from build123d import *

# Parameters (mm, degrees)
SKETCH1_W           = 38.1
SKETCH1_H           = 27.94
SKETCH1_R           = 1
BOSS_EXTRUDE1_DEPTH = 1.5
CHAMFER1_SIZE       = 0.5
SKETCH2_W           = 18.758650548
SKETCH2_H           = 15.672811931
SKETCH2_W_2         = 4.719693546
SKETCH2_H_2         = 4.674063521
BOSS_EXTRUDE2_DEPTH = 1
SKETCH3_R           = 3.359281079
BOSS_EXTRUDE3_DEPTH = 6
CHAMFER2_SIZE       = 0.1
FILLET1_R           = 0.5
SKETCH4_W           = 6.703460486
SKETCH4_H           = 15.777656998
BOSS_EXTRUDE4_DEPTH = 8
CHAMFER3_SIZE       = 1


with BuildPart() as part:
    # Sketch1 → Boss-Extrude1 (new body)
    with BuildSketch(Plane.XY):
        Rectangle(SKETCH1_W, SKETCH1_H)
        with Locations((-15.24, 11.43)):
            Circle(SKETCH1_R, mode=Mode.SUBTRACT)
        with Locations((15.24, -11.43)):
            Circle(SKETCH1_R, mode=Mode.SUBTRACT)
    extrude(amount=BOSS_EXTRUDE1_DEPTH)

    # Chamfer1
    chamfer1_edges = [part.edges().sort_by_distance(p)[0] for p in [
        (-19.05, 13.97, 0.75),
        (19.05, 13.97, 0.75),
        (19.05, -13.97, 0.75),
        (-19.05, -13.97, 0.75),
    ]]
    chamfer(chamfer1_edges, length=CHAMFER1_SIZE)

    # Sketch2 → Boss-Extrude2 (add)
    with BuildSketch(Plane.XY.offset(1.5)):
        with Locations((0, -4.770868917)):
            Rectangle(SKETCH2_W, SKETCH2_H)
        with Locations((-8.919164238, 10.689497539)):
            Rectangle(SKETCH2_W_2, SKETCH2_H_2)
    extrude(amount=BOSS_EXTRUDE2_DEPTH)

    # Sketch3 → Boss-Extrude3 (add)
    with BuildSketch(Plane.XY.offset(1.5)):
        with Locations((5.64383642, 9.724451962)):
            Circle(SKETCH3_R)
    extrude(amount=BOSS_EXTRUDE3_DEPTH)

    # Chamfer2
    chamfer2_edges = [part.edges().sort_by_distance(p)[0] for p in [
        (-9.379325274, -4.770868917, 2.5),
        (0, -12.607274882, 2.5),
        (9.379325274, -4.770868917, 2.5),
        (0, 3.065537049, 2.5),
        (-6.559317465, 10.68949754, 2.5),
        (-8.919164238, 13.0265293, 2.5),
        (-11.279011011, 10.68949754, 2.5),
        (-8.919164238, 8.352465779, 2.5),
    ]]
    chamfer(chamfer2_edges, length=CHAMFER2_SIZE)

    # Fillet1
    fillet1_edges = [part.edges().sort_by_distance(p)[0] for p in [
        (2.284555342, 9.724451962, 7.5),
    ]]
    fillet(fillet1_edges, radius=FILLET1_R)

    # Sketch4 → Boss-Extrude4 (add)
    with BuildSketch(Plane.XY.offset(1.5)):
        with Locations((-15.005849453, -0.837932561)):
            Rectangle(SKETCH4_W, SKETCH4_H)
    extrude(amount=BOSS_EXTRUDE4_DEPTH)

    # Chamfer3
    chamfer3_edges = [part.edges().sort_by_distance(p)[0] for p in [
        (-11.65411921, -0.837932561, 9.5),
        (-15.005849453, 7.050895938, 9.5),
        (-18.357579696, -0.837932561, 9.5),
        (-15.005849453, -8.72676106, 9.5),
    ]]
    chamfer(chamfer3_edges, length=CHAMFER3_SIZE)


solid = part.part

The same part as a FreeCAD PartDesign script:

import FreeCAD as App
import Part
import Sketcher


def edges_at(feature, points):
    """Names of the edges that pass closest to the given points."""
    edges = feature.Shape.Edges
    near = lambda p: min(range(len(edges)), key=lambda i: edges[i].distToShape(Part.Vertex(*p))[0])
    return sorted({f"Edge{near(p) + 1}" for p in points})


def add_polygon(sketch, points):
    """Adds a closed chain of lines whose ends are joined by coincident constraints."""
    first, n = sketch.GeometryCount, len(points)
    for a, b in zip(points, points[1:] + points[:1]):
        sketch.addGeometry(Part.LineSegment(App.Vector(*a, 0), App.Vector(*b, 0)), False)
    for i in range(n):
        sketch.addConstraint(Sketcher.Constraint("Coincident", first + i, 2, first + (i + 1) % n, 1))

doc = App.newDocument("Part")
body = doc.addObject("PartDesign::Body", "Body")

# Sketch on XY plane
sketch1 = body.newObject("Sketcher::SketchObject", "Sketch")
sketch1.AttachmentSupport = (doc.getObject("XY_Plane"), [""])
sketch1.MapMode = "FlatFace"
add_polygon(sketch1, [(-19.1, 14), (-19.1, -14), (19.1, -14), (19.1, 14)])  # lines 0-3
sketch1.addGeometry(Part.Circle(App.Vector(15.2, -11.4, 0), App.Vector(0, 0, 1), 1), False)  # 4
sketch1.addGeometry(Part.Circle(App.Vector(-15.2, 11.4, 0), App.Vector(0, 0, 1), 1), False)  # 5
sketch1.addConstraint(Sketcher.Constraint("Vertical", 0))
sketch1.addConstraint(Sketcher.Constraint("Horizontal", 1))
sketch1.addConstraint(Sketcher.Constraint("Vertical", 2))
sketch1.addConstraint(Sketcher.Constraint("Horizontal", 3))
sketch1.addConstraint(Sketcher.Constraint("Equal", 4, 5))
sketch1.addConstraint(Sketcher.Constraint("Symmetric", 4, 3, 5, 3, -1, 1))
sketch1.addConstraint(Sketcher.Constraint("Symmetric", 0, 2, 2, 2, -1, 1))
sketch1.addConstraint(Sketcher.Constraint("Diameter", 4, 2.0))
sketch1.addConstraint(Sketcher.Constraint("DistanceX", 1, 1, 1, 2, 38.1))
sketch1.addConstraint(Sketcher.Constraint("DistanceY", 0, 2, 0, 1, 27.94))
sketch1.addConstraint(Sketcher.Constraint("DistanceY", 0, 2, 5, 3, 25.4))
sketch1.addConstraint(Sketcher.Constraint("DistanceX", -1, 1, 4, 3, 15.24))
pad1 = body.newObject("PartDesign::Pad", "Pad")
pad1.Profile = sketch1
pad1.Length = 1.5
doc.recompute()

chamfer = body.newObject("PartDesign::Chamfer", "Chamfer")
chamfer.Base = (pad1, edges_at(pad1, [
    (-19.05, 13.97, 0.75),
    (19.05, 13.97, 0.75),
    (19.05, -13.97, 0.75),
    (-19.05, -13.97, 0.75),
]))
chamfer.Size = 0.5

# Sketch on XY plane
sketch2 = body.newObject("Sketcher::SketchObject", "Sketch001")
sketch2.AttachmentSupport = (doc.getObject("XY_Plane"), [""])
sketch2.MapMode = "FlatFace"
sketch2.AttachmentOffset = App.Placement(App.Vector(0, 0, 1.5), App.Rotation())
add_polygon(sketch2, [(-9.4, 3.1), (-9.4, -12.6), (9.4, -12.6), (9.4, 3.1)])  # lines 0-3
add_polygon(sketch2, [(-11.3, 13), (-11.3, 8.4), (-6.6, 8.4), (-6.6, 13)])  # lines 4-7
sketch2.addConstraint(Sketcher.Constraint("Vertical", 0))
sketch2.addConstraint(Sketcher.Constraint("Horizontal", 1))
sketch2.addConstraint(Sketcher.Constraint("Vertical", 2))
sketch2.addConstraint(Sketcher.Constraint("Horizontal", 3))
sketch2.addConstraint(Sketcher.Constraint("Vertical", 4))
sketch2.addConstraint(Sketcher.Constraint("Horizontal", 5))
sketch2.addConstraint(Sketcher.Constraint("Vertical", 6))
sketch2.addConstraint(Sketcher.Constraint("Horizontal", 7))
sketch2.addConstraint(Sketcher.Constraint("DistanceX", 1, 1, 1, 2, 18.758651))
sketch2.addConstraint(Sketcher.Constraint("DistanceY", 0, 2, 0, 1, 15.672812))
sketch2.addConstraint(Sketcher.Constraint("DistanceX", 5, 1, 5, 2, 4.719694))
sketch2.addConstraint(Sketcher.Constraint("DistanceY", 4, 2, 4, 1, 4.674064))
sketch2.addConstraint(Sketcher.Constraint("DistanceX", 4, 2, -1, 1, 11.279011))
sketch2.addConstraint(Sketcher.Constraint("DistanceY", -1, 1, 6, 2, 13.026529))
sketch2.addConstraint(Sketcher.Constraint("DistanceY", 3, 2, 4, 2, 5.286929))
sketch2.addConstraint(Sketcher.Constraint("DistanceX", 0, 2, -1, 1, 9.379325))
pad2 = body.newObject("PartDesign::Pad", "Pad001")
pad2.Profile = sketch2
pad2.Length = 1

# Sketch on XY plane
sketch3 = body.newObject("Sketcher::SketchObject", "Sketch002")
sketch3.AttachmentSupport = (doc.getObject("XY_Plane"), [""])
sketch3.MapMode = "FlatFace"
sketch3.AttachmentOffset = App.Placement(App.Vector(0, 0, 1.5), App.Rotation())
sketch3.addGeometry(Part.Circle(App.Vector(5.6, 9.7, 0), App.Vector(0, 0, 1), 3.4), False)
sketch3.addConstraint(Sketcher.Constraint("Diameter", 0, 6.718562))
sketch3.addConstraint(Sketcher.Constraint("DistanceY", -1, 1, 0, 3, 9.724452))
sketch3.addConstraint(Sketcher.Constraint("DistanceX", -1, 1, 0, 3, 5.643836))
pad3 = body.newObject("PartDesign::Pad", "Pad002")
pad3.Profile = sketch3
pad3.Length = 6
doc.recompute()

chamfer2 = body.newObject("PartDesign::Chamfer", "Chamfer001")
chamfer2.Base = (pad3, edges_at(pad3, [
    (-9.379, -4.771, 2.5),
    (0, -12.607, 2.5),
    (9.379, -4.771, 2.5),
    (0, 3.066, 2.5),
    (-6.559, 10.689, 2.5),
    (-8.919, 13.027, 2.5),
    (-11.279, 10.689, 2.5),
    (-8.919, 8.352, 2.5),
]))
chamfer2.Size = 0.1
doc.recompute()

fillet = body.newObject("PartDesign::Fillet", "Fillet")
fillet.Base = (chamfer2, edges_at(chamfer2, [(2.285, 9.724, 7.5)]))
fillet.Radius = 0.5

# Sketch on XY plane
sketch4 = body.newObject("Sketcher::SketchObject", "Sketch003")
sketch4.AttachmentSupport = (doc.getObject("XY_Plane"), [""])
sketch4.MapMode = "FlatFace"
sketch4.AttachmentOffset = App.Placement(App.Vector(0, 0, 1.5), App.Rotation())
add_polygon(sketch4, [(-18, 7), (-18, -9), (-12, -9), (-12, 7)])  # lines 0-3
sketch4.addConstraint(Sketcher.Constraint("Vertical", 0))
sketch4.addConstraint(Sketcher.Constraint("Horizontal", 1))
sketch4.addConstraint(Sketcher.Constraint("Vertical", 2))
sketch4.addConstraint(Sketcher.Constraint("Horizontal", 3))
sketch4.addConstraint(Sketcher.Constraint("DistanceX", 1, 1, 1, 2, 6.70346))
sketch4.addConstraint(Sketcher.Constraint("DistanceY", 0, 2, 0, 1, 15.777657))
sketch4.addConstraint(Sketcher.Constraint("DistanceX", 0, 2, -1, 1, 18.35758))
sketch4.addConstraint(Sketcher.Constraint("DistanceY", 0, 2, -1, 1, 8.726761))
pad4 = body.newObject("PartDesign::Pad", "Pad003")
pad4.Profile = sketch4
pad4.Length = 8
doc.recompute()

chamfer3 = body.newObject("PartDesign::Chamfer", "Chamfer002")
chamfer3.Base = (pad4, edges_at(pad4, [
    (-11.654, -0.838, 9.5),
    (-15.006, 7.051, 9.5),
    (-18.358, -0.838, 9.5),
    (-15.006, -8.727, 9.5),
]))
chamfer3.Size = 1

doc.recompute()
